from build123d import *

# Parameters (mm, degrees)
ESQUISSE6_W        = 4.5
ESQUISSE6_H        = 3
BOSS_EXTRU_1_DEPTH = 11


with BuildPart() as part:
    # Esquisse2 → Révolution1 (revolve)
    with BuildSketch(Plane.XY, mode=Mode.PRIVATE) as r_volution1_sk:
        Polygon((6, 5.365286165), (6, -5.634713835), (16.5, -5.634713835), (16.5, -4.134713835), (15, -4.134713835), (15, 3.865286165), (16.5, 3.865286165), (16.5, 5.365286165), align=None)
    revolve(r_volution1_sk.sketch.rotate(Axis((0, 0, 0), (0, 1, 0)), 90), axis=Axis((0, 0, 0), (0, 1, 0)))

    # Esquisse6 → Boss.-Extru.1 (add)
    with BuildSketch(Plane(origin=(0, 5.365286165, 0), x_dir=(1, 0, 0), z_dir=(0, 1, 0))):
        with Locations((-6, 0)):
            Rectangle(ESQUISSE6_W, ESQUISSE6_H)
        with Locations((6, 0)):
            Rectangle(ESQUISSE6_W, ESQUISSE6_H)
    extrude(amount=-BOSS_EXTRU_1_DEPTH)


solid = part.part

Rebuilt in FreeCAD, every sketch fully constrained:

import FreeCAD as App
import Part
import Sketcher
from FreeCAD import Vector
Q = App.Units.Quantity

doc = App.newDocument("Part")
body = doc.addObject("PartDesign::Body", "Body")

# Sketch on XY plane
sketch1 = body.newObject("Sketcher::SketchObject", "Sketch")
sketch1.AttachmentSupport = (doc.getObject("XY_Plane"), [""])
sketch1.MapMode = "FlatFace"
sketch1.addGeometry(Part.LineSegment(Vector(6, 5.365286, 0), Vector(6, -5.634714, 0)), False)
sketch1.addGeometry(Part.LineSegment(Vector(6, -5.634714, 0), Vector(16.5, -5.634714, 0)), False)
sketch1.addGeometry(Part.LineSegment(Vector(16.5, -5.634714, 0), Vector(16.5, -4.134714, 0)), False)
sketch1.addGeometry(Part.LineSegment(Vector(16.5, -4.134714, 0), Vector(15, -4.134714, 0)), False)
sketch1.addGeometry(Part.LineSegment(Vector(15, -4.134714, 0), Vector(15, 3.865286, 0)), False)
sketch1.addGeometry(Part.LineSegment(Vector(15, 3.865286, 0), Vector(16.5, 3.865286, 0)), False)
sketch1.addGeometry(Part.LineSegment(Vector(16.5, 3.865286, 0), Vector(16.5, 5.365286, 0)), False)
sketch1.addGeometry(Part.LineSegment(Vector(16.5, 5.365286, 0), Vector(6, 5.365286, 0)), False)
sketch1.addConstraint(Sketcher.Constraint("Coincident", 0, 2, 1, 1))
sketch1.addConstraint(Sketcher.Constraint("Coincident", 1, 2, 2, 1))
sketch1.addConstraint(Sketcher.Constraint("Coincident", 2, 2, 3, 1))
sketch1.addConstraint(Sketcher.Constraint("Coincident", 3, 2, 4, 1))
sketch1.addConstraint(Sketcher.Constraint("Coincident", 4, 2, 5, 1))
sketch1.addConstraint(Sketcher.Constraint("Coincident", 5, 2, 6, 1))
sketch1.addConstraint(Sketcher.Constraint("Coincident", 6, 2, 7, 1))
sketch1.addConstraint(Sketcher.Constraint("Coincident", 7, 2, 0, 1))
sketch1.addConstraint(Sketcher.Constraint("Vertical", 0))
sketch1.addConstraint(Sketcher.Constraint("Horizontal", 1))
sketch1.addConstraint(Sketcher.Constraint("Vertical", 2))
sketch1.addConstraint(Sketcher.Constraint("Horizontal", 3))
sketch1.addConstraint(Sketcher.Constraint("Vertical", 4))
sketch1.addConstraint(Sketcher.Constraint("Horizontal", 5))
sketch1.addConstraint(Sketcher.Constraint("Vertical", 6))
sketch1.addConstraint(Sketcher.Constraint("Horizontal", 7))
sketch1.addConstraint(Sketcher.Constraint("Vertical", 2, 2, 5, 2))
sketch1.addConstraint(Sketcher.Constraint("Equal", 5, 2))
sketch1.addConstraint(Sketcher.Constraint("Equal", 2, 6))
sketch1.addConstraint(Sketcher.Constraint("DistanceY", 0, 2, 0, 1, Q("11 mm")))
sketch1.addConstraint(Sketcher.Constraint("DistanceY", 4, 1, 4, 2, Q("8 mm")))
sketch1.addConstraint(Sketcher.Constraint("DistanceX", 1, 1, 1, 2, Q("10.5 mm")))
sketch1.addConstraint(Sketcher.Constraint("DistanceX", -1, 1, 0, 2, Q("6 mm")))
sketch1.addConstraint(Sketcher.Constraint("DistanceY", 0, 2, -1, 1, Q("5.634714 mm")))
revolution = body.newObject("PartDesign::Revolution", "Revolution")
revolution.Profile = sketch1
revolution.ReferenceAxis = (sketch1, ["V_Axis"])
revolution.Angle = 360

# Sketch on XZ plane
sketch2 = body.newObject("Sketcher::SketchObject", "Sketch001")
sketch2.AttachmentSupport = (doc.getObject("XZ_Plane"), [""])
sketch2.MapMode = "FlatFace"
sketch2.AttachmentOffset = App.Placement(Vector(0, 0, -5.365286), App.Rotation())
sketch2.addGeometry(Part.LineSegment(Vector(-8.25, -1.5, 0), Vector(-8.25, 1.5, 0)), False)
sketch2.addGeometry(Part.LineSegment(Vector(-8.25, 1.5, 0), Vector(-3.75, 1.5, 0)), False)
sketch2.addGeometry(Part.LineSegment(Vector(-3.75, 1.5, 0), Vector(-3.75, -1.5, 0)), False)
sketch2.addGeometry(Part.LineSegment(Vector(-3.75, -1.5, 0), Vector(-8.25, -1.5, 0)), False)
sketch2.addGeometry(Part.LineSegment(Vector(3.75, -1.5, 0), Vector(3.75, 1.5, 0)), False)
sketch2.addGeometry(Part.LineSegment(Vector(3.75, 1.5, 0), Vector(8.25, 1.5, 0)), False)
sketch2.addGeometry(Part.LineSegment(Vector(8.25, 1.5, 0), Vector(8.25, -1.5, 0)), False)
sketch2.addGeometry(Part.LineSegment(Vector(8.25, -1.5, 0), Vector(3.75, -1.5, 0)), False)
sketch2.addConstraint(Sketcher.Constraint("Coincident", 0, 2, 1, 1))
sketch2.addConstraint(Sketcher.Constraint("Coincident", 1, 2, 2, 1))
sketch2.addConstraint(Sketcher.Constraint("Coincident", 2, 2, 3, 1))
sketch2.addConstraint(Sketcher.Constraint("Coincident", 3, 2, 0, 1))
sketch2.addConstraint(Sketcher.Constraint("Coincident", 4, 2, 5, 1))
sketch2.addConstraint(Sketcher.Constraint("Coincident", 5, 2, 6, 1))
sketch2.addConstraint(Sketcher.Constraint("Coincident", 6, 2, 7, 1))
sketch2.addConstraint(Sketcher.Constraint("Coincident", 7, 2, 4, 1))
sketch2.addConstraint(Sketcher.Constraint("Vertical", 0))
sketch2.addConstraint(Sketcher.Constraint("Horizontal", 1))
sketch2.addConstraint(Sketcher.Constraint("Vertical", 2))
sketch2.addConstraint(Sketcher.Constraint("Horizontal", 3))
sketch2.addConstraint(Sketcher.Constraint("Vertical", 4))
sketch2.addConstraint(Sketcher.Constraint("Horizontal", 5))
sketch2.addConstraint(Sketcher.Constraint("Vertical", 6))
sketch2.addConstraint(Sketcher.Constraint("Horizontal", 7))
sketch2.addConstraint(Sketcher.Constraint("Symmetric", 2, 2, 4, 2, -1, 1))
sketch2.addConstraint(Sketcher.Constraint("Symmetric", 0, 2, 6, 2, -1, 1))
sketch2.addConstraint(Sketcher.Constraint("Horizontal", 1, 2, 4, 2))
sketch2.addConstraint(Sketcher.Constraint("DistanceY", 0, 1, 0, 2, Q("3 mm")))
sketch2.addConstraint(Sketcher.Constraint("DistanceX", 1, 1, 1, 2, Q("4.5 mm")))
sketch2.addConstraint(Sketcher.Constraint("DistanceX", 0, 2, 4, 2, Q("12 mm")))
pad1 = body.newObject("PartDesign::Pad", "Pad")
pad1.Profile = sketch2
pad1.Length = 11

doc.recompute()
